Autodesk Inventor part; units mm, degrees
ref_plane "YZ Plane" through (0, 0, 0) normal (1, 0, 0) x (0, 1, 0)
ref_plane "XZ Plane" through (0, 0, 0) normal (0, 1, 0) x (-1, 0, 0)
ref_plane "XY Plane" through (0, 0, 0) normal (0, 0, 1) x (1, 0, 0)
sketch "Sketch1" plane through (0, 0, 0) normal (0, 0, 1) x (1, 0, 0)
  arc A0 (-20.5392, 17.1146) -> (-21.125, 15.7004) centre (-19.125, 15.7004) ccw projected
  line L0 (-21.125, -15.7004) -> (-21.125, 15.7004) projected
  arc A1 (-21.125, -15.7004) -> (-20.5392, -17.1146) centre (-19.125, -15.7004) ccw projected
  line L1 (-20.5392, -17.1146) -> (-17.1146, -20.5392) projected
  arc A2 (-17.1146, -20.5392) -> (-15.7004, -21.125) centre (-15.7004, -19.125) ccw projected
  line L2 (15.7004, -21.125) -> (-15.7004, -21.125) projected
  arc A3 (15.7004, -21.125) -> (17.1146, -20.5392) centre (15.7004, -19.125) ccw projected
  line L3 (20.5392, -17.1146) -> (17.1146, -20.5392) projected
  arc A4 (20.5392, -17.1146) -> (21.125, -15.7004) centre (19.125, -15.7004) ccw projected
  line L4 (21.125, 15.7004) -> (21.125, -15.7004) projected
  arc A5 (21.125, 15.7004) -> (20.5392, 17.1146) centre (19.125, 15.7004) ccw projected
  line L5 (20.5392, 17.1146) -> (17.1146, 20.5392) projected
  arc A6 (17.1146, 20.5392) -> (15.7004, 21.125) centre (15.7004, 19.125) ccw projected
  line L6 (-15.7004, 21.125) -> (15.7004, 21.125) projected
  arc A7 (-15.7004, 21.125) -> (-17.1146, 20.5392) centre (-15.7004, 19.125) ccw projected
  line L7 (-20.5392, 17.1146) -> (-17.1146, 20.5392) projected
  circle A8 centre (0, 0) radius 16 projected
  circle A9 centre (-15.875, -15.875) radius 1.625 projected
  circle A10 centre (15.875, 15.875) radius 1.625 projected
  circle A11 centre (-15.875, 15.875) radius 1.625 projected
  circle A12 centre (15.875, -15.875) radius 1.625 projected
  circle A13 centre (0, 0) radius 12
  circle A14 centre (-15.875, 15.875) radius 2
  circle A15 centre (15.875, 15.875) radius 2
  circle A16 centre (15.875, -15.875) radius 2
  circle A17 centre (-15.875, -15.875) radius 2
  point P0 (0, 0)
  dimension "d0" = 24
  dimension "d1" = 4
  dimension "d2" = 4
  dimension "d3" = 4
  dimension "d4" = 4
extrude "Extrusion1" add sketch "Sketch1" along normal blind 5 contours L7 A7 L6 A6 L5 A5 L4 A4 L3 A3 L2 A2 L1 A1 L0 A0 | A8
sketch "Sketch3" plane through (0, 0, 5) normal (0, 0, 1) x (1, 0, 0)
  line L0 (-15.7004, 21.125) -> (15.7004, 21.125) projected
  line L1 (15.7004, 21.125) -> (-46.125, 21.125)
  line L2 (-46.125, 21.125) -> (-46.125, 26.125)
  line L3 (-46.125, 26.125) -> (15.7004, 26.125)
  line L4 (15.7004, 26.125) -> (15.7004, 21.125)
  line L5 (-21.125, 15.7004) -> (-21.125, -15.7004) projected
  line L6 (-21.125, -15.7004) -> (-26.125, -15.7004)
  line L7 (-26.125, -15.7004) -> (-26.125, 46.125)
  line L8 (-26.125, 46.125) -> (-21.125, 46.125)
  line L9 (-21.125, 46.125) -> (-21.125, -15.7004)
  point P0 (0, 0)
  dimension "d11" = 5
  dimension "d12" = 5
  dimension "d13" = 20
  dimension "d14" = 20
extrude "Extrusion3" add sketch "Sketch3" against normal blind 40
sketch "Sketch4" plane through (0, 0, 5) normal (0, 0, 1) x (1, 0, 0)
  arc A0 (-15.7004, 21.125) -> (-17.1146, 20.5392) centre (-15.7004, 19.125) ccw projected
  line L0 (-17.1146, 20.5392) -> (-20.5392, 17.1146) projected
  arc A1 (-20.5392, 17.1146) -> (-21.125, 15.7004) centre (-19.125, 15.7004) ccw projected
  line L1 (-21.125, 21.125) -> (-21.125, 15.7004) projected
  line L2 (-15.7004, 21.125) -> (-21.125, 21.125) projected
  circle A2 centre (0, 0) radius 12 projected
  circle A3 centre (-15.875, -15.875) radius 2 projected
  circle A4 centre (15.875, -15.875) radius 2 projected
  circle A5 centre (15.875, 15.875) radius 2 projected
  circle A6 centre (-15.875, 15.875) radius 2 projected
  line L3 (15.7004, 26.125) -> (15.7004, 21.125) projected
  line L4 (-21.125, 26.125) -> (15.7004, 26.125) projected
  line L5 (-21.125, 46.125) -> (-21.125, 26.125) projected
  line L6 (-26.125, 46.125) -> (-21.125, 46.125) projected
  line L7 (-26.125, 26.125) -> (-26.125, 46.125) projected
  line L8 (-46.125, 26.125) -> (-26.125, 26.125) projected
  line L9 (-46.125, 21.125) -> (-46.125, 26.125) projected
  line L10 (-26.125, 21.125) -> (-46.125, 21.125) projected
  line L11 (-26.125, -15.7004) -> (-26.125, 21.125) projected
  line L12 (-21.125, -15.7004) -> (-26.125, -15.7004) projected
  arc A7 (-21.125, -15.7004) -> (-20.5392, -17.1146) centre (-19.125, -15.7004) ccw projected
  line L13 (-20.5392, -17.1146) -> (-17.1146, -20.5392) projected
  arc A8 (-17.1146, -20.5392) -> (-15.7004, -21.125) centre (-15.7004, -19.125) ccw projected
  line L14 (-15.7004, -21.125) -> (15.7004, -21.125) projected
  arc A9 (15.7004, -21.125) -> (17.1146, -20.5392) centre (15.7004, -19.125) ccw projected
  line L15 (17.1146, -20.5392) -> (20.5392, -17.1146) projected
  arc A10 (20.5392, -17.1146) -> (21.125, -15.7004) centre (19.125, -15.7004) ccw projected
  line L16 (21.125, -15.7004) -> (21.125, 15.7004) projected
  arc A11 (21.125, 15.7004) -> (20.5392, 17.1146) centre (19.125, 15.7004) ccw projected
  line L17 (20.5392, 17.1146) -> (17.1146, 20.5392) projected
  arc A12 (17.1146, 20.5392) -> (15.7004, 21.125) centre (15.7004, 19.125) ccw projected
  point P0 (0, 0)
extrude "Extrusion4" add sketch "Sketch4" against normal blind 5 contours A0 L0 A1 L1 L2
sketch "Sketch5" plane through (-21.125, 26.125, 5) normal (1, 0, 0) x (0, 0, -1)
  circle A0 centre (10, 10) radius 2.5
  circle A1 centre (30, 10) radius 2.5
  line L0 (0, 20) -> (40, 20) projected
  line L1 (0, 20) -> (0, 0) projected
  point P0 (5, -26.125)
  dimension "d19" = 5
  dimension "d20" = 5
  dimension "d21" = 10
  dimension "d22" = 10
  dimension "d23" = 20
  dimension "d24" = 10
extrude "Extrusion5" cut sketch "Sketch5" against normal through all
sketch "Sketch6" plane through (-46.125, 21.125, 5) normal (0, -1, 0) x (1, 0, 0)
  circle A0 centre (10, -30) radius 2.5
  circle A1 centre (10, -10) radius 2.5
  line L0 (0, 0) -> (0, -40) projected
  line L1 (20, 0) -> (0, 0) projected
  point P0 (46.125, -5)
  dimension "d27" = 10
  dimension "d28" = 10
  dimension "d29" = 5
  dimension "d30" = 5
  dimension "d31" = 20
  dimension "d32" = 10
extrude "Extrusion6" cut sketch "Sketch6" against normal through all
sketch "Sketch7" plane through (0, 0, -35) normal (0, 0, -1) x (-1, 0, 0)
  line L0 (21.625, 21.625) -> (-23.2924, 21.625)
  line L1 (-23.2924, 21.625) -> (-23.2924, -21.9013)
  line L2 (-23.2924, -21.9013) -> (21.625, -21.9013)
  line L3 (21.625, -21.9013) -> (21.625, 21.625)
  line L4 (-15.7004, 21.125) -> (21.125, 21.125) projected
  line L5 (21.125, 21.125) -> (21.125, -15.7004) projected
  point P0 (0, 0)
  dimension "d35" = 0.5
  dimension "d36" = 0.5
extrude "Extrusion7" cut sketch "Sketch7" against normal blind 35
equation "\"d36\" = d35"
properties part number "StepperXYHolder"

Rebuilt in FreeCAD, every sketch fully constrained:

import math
import FreeCAD as App
import Part
import Sketcher
Q = App.Units.Quantity


def add_polygon(sketch, points):
    """Adds a closed chain of lines whose ends are joined by coincident constraints."""
    first, n = sketch.GeometryCount, len(points)
    for a, b in zip(points, points[1:] + points[:1]):
        sketch.addGeometry(Part.LineSegment(App.Vector(*a, 0), App.Vector(*b, 0)), False)
    for i in range(n):
        sketch.addConstraint(Sketcher.Constraint("Coincident", first + i, 2, first + (i + 1) % n, 1))

doc = App.newDocument("Part")
params = doc.addObject("Spreadsheet::Sheet", "Params")
for row, (alias, value) in enumerate([
    ("sketch1_diameter", "4 mm"),
    ("sketch1_diameter2", "24 mm"),
    ("pad1_length", "5 mm"),
    ("sketch2_width", "5 mm"),
    ("sketch2_width2", "20 mm"),
    ("pad2_length", "40 mm"),
    ("sketch3_radius", "2 mm"),
    ("pad3_length", "5 mm"),
    ("sketch4_diameter", "5 mm"),
    ("sketch5_diameter", "5 mm"),
    ("pocket3_length", "35 mm"),
], start=1):
    params.set(f"A{row}", alias)
    params.set(f"B{row}", "=" + value)
    params.setAlias(f"B{row}", alias)

body = doc.addObject("PartDesign::Body", "Body")

sketch1 = body.newObject("Sketcher::SketchObject", "Sketch")
sketch1.AttachmentSupport = (doc.getObject("XY_Plane"), [""])
sketch1.MapMode = "FlatFace"
sketch1.addGeometry([
    Part.LineSegment(App.Vector(-17.1, 20.5, 0), App.Vector(-20.5, 17.1, 0)),
    Part.ArcOfCircle(Part.Circle(App.Vector(-19.1, 15.7, 0), App.Vector(0, 0, 1), 2), math.radians(135), math.radians(180)),
    Part.LineSegment(App.Vector(-21.1, 15.7, 0), App.Vector(-21.1, -15.7, 0)),
    Part.ArcOfCircle(Part.Circle(App.Vector(-19.1, -15.7, 0), App.Vector(0, 0, 1), 2), math.radians(180), math.radians(225)),
    Part.LineSegment(App.Vector(-20.5, -17.1, 0), App.Vector(-17.1, -20.5, 0)),
    Part.ArcOfCircle(Part.Circle(App.Vector(-15.7, -19.1, 0), App.Vector(0, 0, 1), 2), math.radians(-135), math.radians(-90)),
    Part.LineSegment(App.Vector(-15.7, -21.1, 0), App.Vector(15.7, -21.1, 0)),
    Part.ArcOfCircle(Part.Circle(App.Vector(15.7, -19.1, 0), App.Vector(0, 0, 1), 2), math.radians(-90), math.radians(-45)),
    Part.LineSegment(App.Vector(17.1, -20.5, 0), App.Vector(20.5, -17.1, 0)),
    Part.ArcOfCircle(Part.Circle(App.Vector(19.1, -15.7, 0), App.Vector(0, 0, 1), 2), math.radians(-45), math.radians(0)),
    Part.LineSegment(App.Vector(21.1, -15.7, 0), App.Vector(21.1, 15.7, 0)),
    Part.ArcOfCircle(Part.Circle(App.Vector(19.1, 15.7, 0), App.Vector(0, 0, 1), 2), math.radians(0), math.radians(45)),
    Part.LineSegment(App.Vector(20.5, 17.1, 0), App.Vector(17.1, 20.5, 0)),
    Part.ArcOfCircle(Part.Circle(App.Vector(15.7, 19.1, 0), App.Vector(0, 0, 1), 2), math.radians(45), math.radians(90)),
    Part.LineSegment(App.Vector(15.7, 21.1, 0), App.Vector(-15.7, 21.1, 0)),
    Part.ArcOfCircle(Part.Circle(App.Vector(-15.7, 19.1, 0), App.Vector(0, 0, 1), 2), math.radians(90), math.radians(135)),
    Part.Circle(App.Vector(-15.9, -15.9, 0), App.Vector(0, 0, 1), 2),
    Part.Circle(App.Vector(15.9, -15.9, 0), App.Vector(0, 0, 1), 2),
    Part.Circle(App.Vector(-15.9, 15.9, 0), App.Vector(0, 0, 1), 2),
    Part.Circle(App.Vector(15.9, 15.9, 0), App.Vector(0, 0, 1), 2),
    Part.Circle(App.Vector(0, 0, 0), App.Vector(0, 0, 1), 12),
], False)
sketch1.addConstraint([
    Sketcher.Constraint("Tangent", 0, 2, 1, 1),
    Sketcher.Constraint("Tangent", 1, 2, 2, 1),
    Sketcher.Constraint("Tangent", 2, 2, 3, 1),
    Sketcher.Constraint("Tangent", 3, 2, 4, 1),
    Sketcher.Constraint("Tangent", 4, 2, 5, 1),
    Sketcher.Constraint("Tangent", 5, 2, 6, 1),
    Sketcher.Constraint("Tangent", 6, 2, 7, 1),
    Sketcher.Constraint("Tangent", 7, 2, 8, 1),
    Sketcher.Constraint("Tangent", 8, 2, 9, 1),
    Sketcher.Constraint("Tangent", 9, 2, 10, 1),
    Sketcher.Constraint("Tangent", 10, 2, 11, 1),
    Sketcher.Constraint("Tangent", 11, 2, 12, 1),
    Sketcher.Constraint("Tangent", 12, 2, 13, 1),
    Sketcher.Constraint("Tangent", 13, 2, 14, 1),
    Sketcher.Constraint("Tangent", 14, 2, 15, 1),
    Sketcher.Constraint("Tangent", 15, 2, 0, 1),
    Sketcher.Constraint("Vertical", 2),
    Sketcher.Constraint("Horizontal", 6),
    Sketcher.Constraint("Vertical", 10),
    Sketcher.Constraint("Horizontal", 14),
    Sketcher.Constraint("Coincident", 20, 3, -1, 1),
    Sketcher.Constraint("Equal", 1, 3),
    Sketcher.Constraint("Equal", 3, 5),
    Sketcher.Constraint("Equal", 5, 7),
    Sketcher.Constraint("Equal", 7, 9),
    Sketcher.Constraint("Equal", 9, 11),
    Sketcher.Constraint("Equal", 11, 13),
    Sketcher.Constraint("Equal", 13, 15),
    Sketcher.Constraint("Equal", 15, 16),
    Sketcher.Constraint("Equal", 16, 17),
    Sketcher.Constraint("Equal", 17, 18),
    Sketcher.Constraint("Equal", 18, 19),
    Sketcher.Constraint("Symmetric", 1, 3, 9, 3, -1, 1),
    Sketcher.Constraint("Symmetric", 5, 3, 13, 3, -1, 1),
    Sketcher.Constraint("Symmetric", 17, 3, 18, 3, -1, 1),
    Sketcher.Constraint("Symmetric", 16, 3, 19, 3, -1, 1),
    Sketcher.Constraint("Symmetric", 16, 3, 17, 3, -2),
    Sketcher.Constraint("Symmetric", 4, 2, 7, 2, -2),
    Sketcher.Constraint("Symmetric", 0, 2, 11, 2, -2),
    Sketcher.Constraint("Perpendicular", 0, 4),
    Sketcher.Constraint("Equal", 14, 2),
    Sketcher.Constraint("Diameter", 16, Q("4 mm")),
    Sketcher.Constraint("Diameter", 20, Q("24 mm")),
    Sketcher.Constraint("DistanceX", 16, 3, 9, 3, Q("35 mm")),
    Sketcher.Constraint("DistanceX", 3, 3, 9, 3, Q("38.25 mm")),
    Sketcher.Constraint("DistanceY", 5, 3, 16, 3, Q("3.25 mm")),
    Sketcher.Constraint("Distance", 0, Q("4.843 mm")),
])
sketch1.setExpression("Constraints[41]", "Params.sketch1_diameter")
sketch1.setExpression("Constraints[42]", "Params.sketch1_diameter2")
pad1 = body.newObject("PartDesign::Pad", "Pad")
pad1.Profile = sketch1
pad1.setExpression("Length", "Params.pad1_length")

sketch2 = body.newObject("Sketcher::SketchObject", "Sketch001")
sketch2.AttachmentSupport = (doc.getObject("XY_Plane"), [""])
sketch2.MapMode = "FlatFace"
sketch2.AttachmentOffset = App.Placement(App.Vector(0, 0, 5), App.Rotation())
add_polygon(sketch2, [(-21, 21), (16, 21), (16, 26), (-21, 26), (-21, 46), (-26, 46), (-26, 26), (-46, 26), (-46, 21), (-26, 21), (-26, -16), (-21, -16)])
sketch2.addConstraint([
    Sketcher.Constraint("Horizontal", 0),
    Sketcher.Constraint("Vertical", 1),
    Sketcher.Constraint("Horizontal", 2),
    Sketcher.Constraint("Vertical", 3),
    Sketcher.Constraint("Horizontal", 4),
    Sketcher.Constraint("Vertical", 5),
    Sketcher.Constraint("Horizontal", 6),
    Sketcher.Constraint("Vertical", 7),
    Sketcher.Constraint("Horizontal", 8),
    Sketcher.Constraint("Vertical", 9),
    Sketcher.Constraint("Horizontal", 10),
    Sketcher.Constraint("Vertical", 11),
    Sketcher.Constraint("Horizontal", 2, 2, 5, 2),
    Sketcher.Constraint("Horizontal", 0, 2, 7, 2),
    Sketcher.Constraint("Vertical", 5, 2, 8, 2),
    Sketcher.Constraint("Vertical", 3, 2, 10, 2),
    Sketcher.Constraint("Equal", 10, 1),
    Sketcher.Constraint("Equal", 8, 3),
    Sketcher.Constraint("Equal", 2, 9),
    Sketcher.Constraint("DistanceX", 4, 2, 4, 1, Q("5 mm")),
    Sketcher.Constraint("DistanceX", 6, 2, 6, 1, Q("20 mm")),
    Sketcher.Constraint("DistanceX", 0, 1, 0, 2, Q("36.8254 mm")),
    Sketcher.Constraint("DistanceY", -1, 1, 0, 2, Q("21.125 mm")),
    Sketcher.Constraint("DistanceX", 2, 2, -1, 1, Q("21.125 mm")),
])
sketch2.setExpression("Constraints[31]", "Params.sketch2_width")
sketch2.setExpression("Constraints[32]", "Params.sketch2_width2")
pad2 = body.newObject("PartDesign::Pad", "Pad001")
pad2.Profile = sketch2
pad2.setExpression("Length", "Params.pad2_length")
pad2.Reversed = True

sketch3 = body.newObject("Sketcher::SketchObject", "Sketch002")
sketch3.AttachmentSupport = (doc.getObject("XY_Plane"), [""])
sketch3.MapMode = "FlatFace"
sketch3.AttachmentOffset = App.Placement(App.Vector(0, 0, 5), App.Rotation())
sketch3.addGeometry([
    Part.ArcOfCircle(Part.Circle(App.Vector(-15.7, 19.1, 0), App.Vector(0, 0, 1), 2), math.radians(90), math.radians(135)),
    Part.LineSegment(App.Vector(-15.7, 21.1, 0), App.Vector(-21.1, 21.1, 0)),
    Part.LineSegment(App.Vector(-21.1, 21.1, 0), App.Vector(-21.1, 15.7, 0)),
    Part.ArcOfCircle(Part.Circle(App.Vector(-19.1, 15.7, 0), App.Vector(0, 0, 1), 2), math.radians(135), math.radians(180)),
    Part.LineSegment(App.Vector(-20.5, 17.1, 0), App.Vector(-17.1, 20.5, 0)),
], False)
sketch3.addConstraint([
    Sketcher.Constraint("Tangent", 0, 1, 1, 1),
    Sketcher.Constraint("Coincident", 1, 2, 2, 1),
    Sketcher.Constraint("Tangent", 2, 2, 3, 2),
    Sketcher.Constraint("Tangent", 3, 1, 4, 1),
    Sketcher.Constraint("Tangent", 4, 2, 0, 2),
    Sketcher.Constraint("Horizontal", 1),
    Sketcher.Constraint("Vertical", 2),
    Sketcher.Constraint("Equal", 0, 3),
    Sketcher.Constraint("Equal", 1, 2),
    Sketcher.Constraint("Radius", 0, Q("2 mm")),
    Sketcher.Constraint("Distance", 4, Q("4.843 mm")),
    Sketcher.Constraint("DistanceY", -1, 1, 0, 3, Q("19.125 mm")),
    Sketcher.Constraint("DistanceX", 3, 3, -1, 1, Q("19.125 mm")),
])
sketch3.setExpression("Constraints[9]", "Params.sketch3_radius")
pad3 = body.newObject("PartDesign::Pad", "Pad002")
pad3.Profile = sketch3
pad3.setExpression("Length", "Params.pad3_length")
pad3.Reversed = True

sketch4 = body.newObject("Sketcher::SketchObject", "Sketch003")
sketch4.AttachmentSupport = (doc.getObject("YZ_Plane"), [""])
sketch4.MapMode = "FlatFace"
sketch4.AttachmentOffset = App.Placement(App.Vector(0, 0, -21.125), App.Rotation())
sketch4.addGeometry([
    Part.Circle(App.Vector(36.1, -5, 0), App.Vector(0, 0, 1), 2.5),
    Part.Circle(App.Vector(36.1, -25, 0), App.Vector(0, 0, 1), 2.5),
], False)
sketch4.addConstraint([
    Sketcher.Constraint("Equal", 0, 1),
    Sketcher.Constraint("Vertical", 0, 3, 1, 3),
    Sketcher.Constraint("Diameter", 0, Q("5 mm")),
    Sketcher.Constraint("DistanceY", 0, 3, -1, 1, Q("5 mm")),
    Sketcher.Constraint("DistanceY", 1, 3, 0, 3, Q("20 mm")),
    Sketcher.Constraint("DistanceX", -1, 1, 0, 3, Q("36.125 mm")),
])
sketch4.setExpression("Constraints[2]", "Params.sketch4_diameter")
pocket1 = body.newObject("PartDesign::Pocket", "Pocket")
pocket1.Profile = sketch4
pocket1.Type = "ThroughAll"

sketch5 = body.newObject("Sketcher::SketchObject", "Sketch004")
sketch5.AttachmentSupport = (doc.getObject("XZ_Plane"), [""])
sketch5.MapMode = "FlatFace"
sketch5.AttachmentOffset = App.Placement(App.Vector(0, 0, -21.125), App.Rotation())
sketch5.addGeometry([
    Part.Circle(App.Vector(-36.1, -25, 0), App.Vector(0, 0, 1), 2.5),
    Part.Circle(App.Vector(-36.1, -5, 0), App.Vector(0, 0, 1), 2.5),
], False)
sketch5.addConstraint([
    Sketcher.Constraint("Equal", 0, 1),
    Sketcher.Constraint("Vertical", 0, 3, 1, 3),
    Sketcher.Constraint("Diameter", 0, Q("5 mm")),
    Sketcher.Constraint("DistanceY", 1, 3, -1, 1, Q("5 mm")),
    Sketcher.Constraint("DistanceY", 0, 3, 1, 3, Q("20 mm")),
    Sketcher.Constraint("DistanceX", 0, 3, -1, 1, Q("36.125 mm")),
])
sketch5.setExpression("Constraints[2]", "Params.sketch5_diameter")
pocket2 = body.newObject("PartDesign::Pocket", "Pocket001")
pocket2.Profile = sketch5
pocket2.Type = "ThroughAll"

sketch6 = body.newObject("Sketcher::SketchObject", "Sketch005")
sketch6.AttachmentSupport = (doc.getObject("XY_Plane"), [""])
sketch6.MapMode = "FlatFace"
sketch6.AttachmentOffset = App.Placement(App.Vector(0, 0, -35), App.Rotation())
add_polygon(sketch6, [(-22, -22), (-22, 22), (23, 22), (23, -22)])
sketch6.addConstraint([
    Sketcher.Constraint("Vertical", 0),
    Sketcher.Constraint("Horizontal", 1),
    Sketcher.Constraint("Vertical", 2),
    Sketcher.Constraint("Horizontal", 3),
    Sketcher.Constraint("DistanceX", 1, 1, 1, 2, Q("44.9174 mm")),
    Sketcher.Constraint("DistanceY", 0, 1, 0, 2, Q("43.5263 mm")),
    Sketcher.Constraint("DistanceX", 0, 2, -1, 1, Q("21.625 mm")),
    Sketcher.Constraint("DistanceY", -1, 1, 0, 2, Q("21.625 mm")),
])
pocket3 = body.newObject("PartDesign::Pocket", "Pocket002")
pocket3.Profile = sketch6
pocket3.setExpression("Length", "Params.pocket3_length")
pocket3.Reversed = True

doc.recompute()
